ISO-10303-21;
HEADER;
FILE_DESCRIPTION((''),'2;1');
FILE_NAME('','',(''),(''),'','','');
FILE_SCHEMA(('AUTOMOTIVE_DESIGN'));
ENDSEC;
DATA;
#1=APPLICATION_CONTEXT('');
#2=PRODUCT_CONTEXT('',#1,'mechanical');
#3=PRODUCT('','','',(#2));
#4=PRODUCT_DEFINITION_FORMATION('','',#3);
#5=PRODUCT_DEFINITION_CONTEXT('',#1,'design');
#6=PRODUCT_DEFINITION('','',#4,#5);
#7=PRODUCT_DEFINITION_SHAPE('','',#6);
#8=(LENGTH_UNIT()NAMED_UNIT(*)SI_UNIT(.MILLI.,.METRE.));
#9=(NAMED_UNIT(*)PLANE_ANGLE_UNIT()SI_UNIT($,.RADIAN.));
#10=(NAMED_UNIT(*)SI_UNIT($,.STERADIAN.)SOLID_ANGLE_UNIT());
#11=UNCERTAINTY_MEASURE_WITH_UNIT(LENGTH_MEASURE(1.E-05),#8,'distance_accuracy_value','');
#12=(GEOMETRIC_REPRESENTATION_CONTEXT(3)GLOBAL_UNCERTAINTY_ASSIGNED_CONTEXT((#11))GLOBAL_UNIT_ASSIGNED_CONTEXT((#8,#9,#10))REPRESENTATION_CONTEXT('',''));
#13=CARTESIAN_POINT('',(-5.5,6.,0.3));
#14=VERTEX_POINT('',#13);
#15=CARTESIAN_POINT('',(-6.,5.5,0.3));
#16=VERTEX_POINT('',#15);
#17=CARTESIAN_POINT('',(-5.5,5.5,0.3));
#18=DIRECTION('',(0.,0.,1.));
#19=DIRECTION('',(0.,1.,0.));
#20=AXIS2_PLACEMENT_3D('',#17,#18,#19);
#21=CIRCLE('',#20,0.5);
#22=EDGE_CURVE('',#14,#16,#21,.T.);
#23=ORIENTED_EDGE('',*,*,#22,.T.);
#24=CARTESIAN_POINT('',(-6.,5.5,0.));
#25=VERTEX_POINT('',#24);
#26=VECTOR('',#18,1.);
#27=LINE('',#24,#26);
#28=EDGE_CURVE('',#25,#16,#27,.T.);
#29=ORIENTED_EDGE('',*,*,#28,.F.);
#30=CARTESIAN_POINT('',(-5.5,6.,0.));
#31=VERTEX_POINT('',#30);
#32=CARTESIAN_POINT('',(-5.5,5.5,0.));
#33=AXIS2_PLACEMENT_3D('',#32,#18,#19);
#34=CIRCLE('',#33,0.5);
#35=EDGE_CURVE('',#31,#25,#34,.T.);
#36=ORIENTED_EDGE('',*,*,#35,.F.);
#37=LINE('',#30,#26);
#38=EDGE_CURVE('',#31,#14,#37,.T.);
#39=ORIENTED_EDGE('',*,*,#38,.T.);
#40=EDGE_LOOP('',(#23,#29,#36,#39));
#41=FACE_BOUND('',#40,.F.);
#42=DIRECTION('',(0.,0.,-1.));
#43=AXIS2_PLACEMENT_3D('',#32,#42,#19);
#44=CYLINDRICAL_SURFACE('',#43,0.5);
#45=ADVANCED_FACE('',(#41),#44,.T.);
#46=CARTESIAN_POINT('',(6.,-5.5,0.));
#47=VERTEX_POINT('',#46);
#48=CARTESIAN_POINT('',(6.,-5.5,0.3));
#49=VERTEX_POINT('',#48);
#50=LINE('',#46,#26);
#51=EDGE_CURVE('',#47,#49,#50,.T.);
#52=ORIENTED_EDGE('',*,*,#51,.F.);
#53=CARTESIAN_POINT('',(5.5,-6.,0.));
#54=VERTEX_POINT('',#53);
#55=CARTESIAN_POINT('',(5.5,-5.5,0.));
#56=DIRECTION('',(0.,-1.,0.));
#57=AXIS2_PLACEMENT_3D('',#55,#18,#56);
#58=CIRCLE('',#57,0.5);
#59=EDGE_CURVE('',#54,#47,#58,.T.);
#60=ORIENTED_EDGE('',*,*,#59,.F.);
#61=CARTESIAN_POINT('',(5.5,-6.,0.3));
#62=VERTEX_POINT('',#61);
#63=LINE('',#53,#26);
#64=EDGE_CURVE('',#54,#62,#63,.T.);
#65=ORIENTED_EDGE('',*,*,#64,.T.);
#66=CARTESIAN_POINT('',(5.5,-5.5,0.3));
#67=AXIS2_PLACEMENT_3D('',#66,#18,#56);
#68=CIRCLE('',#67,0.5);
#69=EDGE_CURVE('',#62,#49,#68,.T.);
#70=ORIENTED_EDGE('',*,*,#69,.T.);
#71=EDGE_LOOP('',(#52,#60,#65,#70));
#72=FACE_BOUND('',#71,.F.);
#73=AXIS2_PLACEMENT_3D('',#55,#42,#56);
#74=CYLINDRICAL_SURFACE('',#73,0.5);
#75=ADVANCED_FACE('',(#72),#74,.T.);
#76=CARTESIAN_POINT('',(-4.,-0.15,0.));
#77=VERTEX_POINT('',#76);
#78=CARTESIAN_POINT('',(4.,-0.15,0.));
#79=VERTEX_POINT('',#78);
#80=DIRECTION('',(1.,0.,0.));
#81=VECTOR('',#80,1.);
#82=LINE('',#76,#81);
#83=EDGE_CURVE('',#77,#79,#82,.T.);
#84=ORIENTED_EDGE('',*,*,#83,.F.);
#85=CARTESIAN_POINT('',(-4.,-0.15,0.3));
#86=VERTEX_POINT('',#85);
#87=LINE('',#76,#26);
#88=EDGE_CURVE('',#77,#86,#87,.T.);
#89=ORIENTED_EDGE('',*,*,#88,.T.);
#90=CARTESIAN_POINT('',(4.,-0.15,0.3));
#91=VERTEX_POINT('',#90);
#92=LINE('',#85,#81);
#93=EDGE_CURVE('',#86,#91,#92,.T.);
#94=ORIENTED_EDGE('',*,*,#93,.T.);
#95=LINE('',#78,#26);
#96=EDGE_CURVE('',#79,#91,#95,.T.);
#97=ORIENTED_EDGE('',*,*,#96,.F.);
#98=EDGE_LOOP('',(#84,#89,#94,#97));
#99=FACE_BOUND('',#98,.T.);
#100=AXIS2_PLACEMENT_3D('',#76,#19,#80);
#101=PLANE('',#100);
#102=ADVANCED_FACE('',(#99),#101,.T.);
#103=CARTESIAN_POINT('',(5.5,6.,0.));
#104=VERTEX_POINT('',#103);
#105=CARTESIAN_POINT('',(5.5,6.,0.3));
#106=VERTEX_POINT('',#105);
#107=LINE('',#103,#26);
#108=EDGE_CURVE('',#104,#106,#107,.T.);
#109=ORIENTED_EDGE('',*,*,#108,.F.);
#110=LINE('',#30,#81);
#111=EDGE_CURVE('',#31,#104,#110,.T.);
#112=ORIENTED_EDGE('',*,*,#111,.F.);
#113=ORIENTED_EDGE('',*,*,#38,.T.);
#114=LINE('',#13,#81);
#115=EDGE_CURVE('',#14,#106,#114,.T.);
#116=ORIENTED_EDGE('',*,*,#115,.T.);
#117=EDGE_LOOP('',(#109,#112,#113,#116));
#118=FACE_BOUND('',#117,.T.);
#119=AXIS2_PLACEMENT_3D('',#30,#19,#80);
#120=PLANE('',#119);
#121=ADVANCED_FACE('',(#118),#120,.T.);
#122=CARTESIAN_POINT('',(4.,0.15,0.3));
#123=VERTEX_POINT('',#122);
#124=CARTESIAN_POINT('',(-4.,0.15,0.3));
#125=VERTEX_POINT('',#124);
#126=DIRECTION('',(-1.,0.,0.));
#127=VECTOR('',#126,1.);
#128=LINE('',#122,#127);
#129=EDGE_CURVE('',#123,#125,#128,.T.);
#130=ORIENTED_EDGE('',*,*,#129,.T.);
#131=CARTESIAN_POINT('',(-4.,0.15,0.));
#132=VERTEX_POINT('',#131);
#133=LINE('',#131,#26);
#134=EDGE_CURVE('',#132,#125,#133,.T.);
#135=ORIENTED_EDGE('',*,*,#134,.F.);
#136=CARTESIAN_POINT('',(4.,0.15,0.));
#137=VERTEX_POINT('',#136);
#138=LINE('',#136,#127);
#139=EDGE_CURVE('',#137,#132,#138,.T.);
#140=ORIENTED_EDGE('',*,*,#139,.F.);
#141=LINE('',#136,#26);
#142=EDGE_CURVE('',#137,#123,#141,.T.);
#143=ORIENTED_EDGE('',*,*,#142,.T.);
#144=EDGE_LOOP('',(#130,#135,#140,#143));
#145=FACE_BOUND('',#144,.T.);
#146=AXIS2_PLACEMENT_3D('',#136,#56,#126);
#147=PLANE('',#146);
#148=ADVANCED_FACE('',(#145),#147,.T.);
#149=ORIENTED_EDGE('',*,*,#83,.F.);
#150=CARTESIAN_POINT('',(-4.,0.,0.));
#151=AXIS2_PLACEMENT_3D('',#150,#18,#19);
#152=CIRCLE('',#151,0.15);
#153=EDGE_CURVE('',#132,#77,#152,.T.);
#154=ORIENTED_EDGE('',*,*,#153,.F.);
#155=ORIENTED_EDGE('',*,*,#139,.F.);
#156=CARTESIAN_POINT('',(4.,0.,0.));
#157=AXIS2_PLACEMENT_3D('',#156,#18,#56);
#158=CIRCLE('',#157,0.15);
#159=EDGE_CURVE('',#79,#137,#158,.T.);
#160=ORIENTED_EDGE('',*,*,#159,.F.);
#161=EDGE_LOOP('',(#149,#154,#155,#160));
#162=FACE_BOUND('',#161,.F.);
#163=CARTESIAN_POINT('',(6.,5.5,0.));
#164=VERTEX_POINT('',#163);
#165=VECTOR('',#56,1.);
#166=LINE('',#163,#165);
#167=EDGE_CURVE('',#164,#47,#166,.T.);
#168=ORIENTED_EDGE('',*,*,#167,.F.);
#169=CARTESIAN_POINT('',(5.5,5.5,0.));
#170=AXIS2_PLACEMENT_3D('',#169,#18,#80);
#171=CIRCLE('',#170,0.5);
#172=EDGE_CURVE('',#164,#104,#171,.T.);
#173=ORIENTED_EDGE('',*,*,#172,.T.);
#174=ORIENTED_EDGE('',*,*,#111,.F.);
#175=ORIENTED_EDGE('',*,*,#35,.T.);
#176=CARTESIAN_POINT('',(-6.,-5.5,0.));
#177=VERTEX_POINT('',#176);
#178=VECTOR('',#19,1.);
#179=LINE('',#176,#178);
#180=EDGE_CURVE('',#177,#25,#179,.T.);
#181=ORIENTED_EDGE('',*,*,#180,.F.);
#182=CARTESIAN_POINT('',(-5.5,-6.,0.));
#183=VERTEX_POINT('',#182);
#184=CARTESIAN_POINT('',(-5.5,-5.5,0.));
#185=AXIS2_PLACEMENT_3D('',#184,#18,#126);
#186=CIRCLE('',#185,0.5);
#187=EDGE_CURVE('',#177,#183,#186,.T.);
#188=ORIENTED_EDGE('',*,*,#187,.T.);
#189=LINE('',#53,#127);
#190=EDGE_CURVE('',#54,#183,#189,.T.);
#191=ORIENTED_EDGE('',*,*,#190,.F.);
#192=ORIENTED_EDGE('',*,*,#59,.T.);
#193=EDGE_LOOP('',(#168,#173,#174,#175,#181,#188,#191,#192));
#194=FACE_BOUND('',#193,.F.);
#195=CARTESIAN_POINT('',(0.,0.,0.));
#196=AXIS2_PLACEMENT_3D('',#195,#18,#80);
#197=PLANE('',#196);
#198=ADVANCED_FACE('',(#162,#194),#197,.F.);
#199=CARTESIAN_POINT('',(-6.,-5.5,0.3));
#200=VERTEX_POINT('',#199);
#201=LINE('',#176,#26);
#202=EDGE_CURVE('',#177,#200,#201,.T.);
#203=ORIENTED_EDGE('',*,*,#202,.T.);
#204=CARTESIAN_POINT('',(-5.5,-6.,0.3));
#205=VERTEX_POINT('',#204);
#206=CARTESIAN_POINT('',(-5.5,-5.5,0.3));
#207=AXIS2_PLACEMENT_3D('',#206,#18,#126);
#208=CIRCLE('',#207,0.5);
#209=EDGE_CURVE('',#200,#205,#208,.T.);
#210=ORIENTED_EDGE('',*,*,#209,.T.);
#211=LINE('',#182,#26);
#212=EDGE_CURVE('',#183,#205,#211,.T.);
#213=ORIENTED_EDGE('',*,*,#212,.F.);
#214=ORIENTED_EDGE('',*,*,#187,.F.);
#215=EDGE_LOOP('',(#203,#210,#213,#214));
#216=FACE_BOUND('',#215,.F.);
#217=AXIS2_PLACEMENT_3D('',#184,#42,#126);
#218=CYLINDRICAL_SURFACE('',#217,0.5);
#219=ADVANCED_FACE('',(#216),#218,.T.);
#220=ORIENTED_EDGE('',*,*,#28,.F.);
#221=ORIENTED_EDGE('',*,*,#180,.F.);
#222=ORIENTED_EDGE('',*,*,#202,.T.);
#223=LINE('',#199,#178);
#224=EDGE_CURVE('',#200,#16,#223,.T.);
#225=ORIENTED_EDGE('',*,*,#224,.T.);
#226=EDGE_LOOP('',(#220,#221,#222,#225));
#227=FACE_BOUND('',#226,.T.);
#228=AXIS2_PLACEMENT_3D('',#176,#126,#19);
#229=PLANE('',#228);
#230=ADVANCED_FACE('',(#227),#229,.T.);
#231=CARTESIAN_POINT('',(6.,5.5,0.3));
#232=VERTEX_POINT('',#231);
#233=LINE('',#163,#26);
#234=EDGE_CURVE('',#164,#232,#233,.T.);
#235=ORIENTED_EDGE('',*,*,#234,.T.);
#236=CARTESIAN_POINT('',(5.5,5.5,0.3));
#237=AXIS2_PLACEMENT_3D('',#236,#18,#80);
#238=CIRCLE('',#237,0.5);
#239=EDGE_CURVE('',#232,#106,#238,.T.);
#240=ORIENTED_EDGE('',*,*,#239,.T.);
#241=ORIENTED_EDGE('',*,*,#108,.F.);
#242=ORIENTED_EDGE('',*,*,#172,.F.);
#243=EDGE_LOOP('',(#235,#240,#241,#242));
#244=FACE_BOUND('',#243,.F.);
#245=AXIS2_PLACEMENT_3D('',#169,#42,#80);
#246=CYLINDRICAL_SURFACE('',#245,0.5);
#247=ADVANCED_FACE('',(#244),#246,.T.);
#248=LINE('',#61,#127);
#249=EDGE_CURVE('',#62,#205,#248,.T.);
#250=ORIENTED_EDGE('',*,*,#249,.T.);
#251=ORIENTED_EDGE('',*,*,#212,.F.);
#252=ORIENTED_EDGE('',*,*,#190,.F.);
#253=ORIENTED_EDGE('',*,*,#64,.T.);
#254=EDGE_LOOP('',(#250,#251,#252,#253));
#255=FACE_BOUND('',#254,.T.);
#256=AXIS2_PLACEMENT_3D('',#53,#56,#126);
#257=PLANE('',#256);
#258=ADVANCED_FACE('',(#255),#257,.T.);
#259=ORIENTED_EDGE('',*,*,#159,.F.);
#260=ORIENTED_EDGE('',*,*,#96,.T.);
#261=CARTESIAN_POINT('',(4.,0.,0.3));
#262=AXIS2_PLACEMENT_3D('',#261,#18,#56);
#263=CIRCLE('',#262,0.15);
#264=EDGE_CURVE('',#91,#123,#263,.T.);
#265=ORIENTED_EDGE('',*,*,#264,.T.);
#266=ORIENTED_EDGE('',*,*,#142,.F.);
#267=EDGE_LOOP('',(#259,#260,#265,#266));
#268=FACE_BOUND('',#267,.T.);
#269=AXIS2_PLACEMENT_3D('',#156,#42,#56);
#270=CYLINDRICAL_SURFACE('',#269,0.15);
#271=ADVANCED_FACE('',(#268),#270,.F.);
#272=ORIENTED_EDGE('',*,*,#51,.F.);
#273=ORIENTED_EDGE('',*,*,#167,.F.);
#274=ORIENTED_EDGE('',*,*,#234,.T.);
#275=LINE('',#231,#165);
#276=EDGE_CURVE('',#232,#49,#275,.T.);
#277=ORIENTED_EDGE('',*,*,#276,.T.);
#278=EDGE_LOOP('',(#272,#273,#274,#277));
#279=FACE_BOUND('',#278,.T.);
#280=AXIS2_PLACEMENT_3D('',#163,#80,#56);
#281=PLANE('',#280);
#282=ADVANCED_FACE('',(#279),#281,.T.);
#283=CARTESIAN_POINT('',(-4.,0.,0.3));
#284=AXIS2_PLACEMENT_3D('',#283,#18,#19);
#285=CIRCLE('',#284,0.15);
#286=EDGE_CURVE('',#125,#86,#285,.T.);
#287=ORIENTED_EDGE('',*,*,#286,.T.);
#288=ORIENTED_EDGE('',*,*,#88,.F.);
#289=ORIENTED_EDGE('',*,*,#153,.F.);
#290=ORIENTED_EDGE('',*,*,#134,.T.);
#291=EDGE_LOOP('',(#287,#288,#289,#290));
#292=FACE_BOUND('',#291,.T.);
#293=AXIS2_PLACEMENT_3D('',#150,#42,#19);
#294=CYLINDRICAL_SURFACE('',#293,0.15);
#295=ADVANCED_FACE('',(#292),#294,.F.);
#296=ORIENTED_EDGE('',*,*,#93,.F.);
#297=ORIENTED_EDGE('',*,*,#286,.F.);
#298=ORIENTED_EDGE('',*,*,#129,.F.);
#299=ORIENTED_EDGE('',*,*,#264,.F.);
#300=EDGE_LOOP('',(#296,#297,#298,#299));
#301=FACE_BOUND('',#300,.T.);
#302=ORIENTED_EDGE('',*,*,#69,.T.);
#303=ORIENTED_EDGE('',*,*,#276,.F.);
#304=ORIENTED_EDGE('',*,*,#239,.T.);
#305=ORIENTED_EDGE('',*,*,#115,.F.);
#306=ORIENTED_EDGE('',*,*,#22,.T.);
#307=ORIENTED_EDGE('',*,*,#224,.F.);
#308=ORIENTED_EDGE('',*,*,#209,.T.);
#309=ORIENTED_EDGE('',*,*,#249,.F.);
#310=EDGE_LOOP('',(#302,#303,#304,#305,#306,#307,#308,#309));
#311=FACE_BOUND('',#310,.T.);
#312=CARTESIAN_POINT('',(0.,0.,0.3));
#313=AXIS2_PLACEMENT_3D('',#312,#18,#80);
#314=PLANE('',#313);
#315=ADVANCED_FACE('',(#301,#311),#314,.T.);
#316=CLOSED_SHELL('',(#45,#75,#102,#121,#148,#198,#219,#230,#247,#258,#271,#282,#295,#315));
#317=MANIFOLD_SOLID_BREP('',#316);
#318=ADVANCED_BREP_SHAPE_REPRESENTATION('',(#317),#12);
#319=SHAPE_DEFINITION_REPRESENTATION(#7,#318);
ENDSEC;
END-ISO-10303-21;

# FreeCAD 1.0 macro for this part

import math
import FreeCAD as App
import Part
import Sketcher
from FreeCAD import Vector
Q = App.Units.Quantity

doc = App.newDocument("Part")
body = doc.addObject("PartDesign::Body", "Body")

sketch1 = body.newObject("Sketcher::SketchObject", "Sketch")
sketch1.AttachmentSupport = (doc.getObject("XY_Plane"), [""])
sketch1.MapMode = "FlatFace"
sketch1.addGeometry([
    Part.LineSegment(Vector(5.5, 6, 0), Vector(-5.5, 6, 0)),
    Part.ArcOfCircle(Part.Circle(Vector(-5.5, 5.5, 0), Vector(0, 0, 1), 0.5), math.radians(90), math.radians(180)),
    Part.LineSegment(Vector(-6, 5.5, 0), Vector(-6, -5.5, 0)),
    Part.ArcOfCircle(Part.Circle(Vector(-5.5, -5.5, 0), Vector(0, 0, 1), 0.5), math.radians(180), math.radians(270)),
    Part.LineSegment(Vector(-5.5, -6, 0), Vector(5.5, -6, 0)),
    Part.ArcOfCircle(Part.Circle(Vector(5.5, -5.5, 0), Vector(0, 0, 1), 0.5), math.radians(-90), math.radians(0)),
    Part.LineSegment(Vector(6, -5.5, 0), Vector(6, 5.5, 0)),
    Part.ArcOfCircle(Part.Circle(Vector(5.5, 5.5, 0), Vector(0, 0, 1), 0.5), math.radians(0), math.radians(90)),
    Part.LineSegment(Vector(4, -0.15, 0), Vector(-4, -0.15, 0)),
    Part.ArcOfCircle(Part.Circle(Vector(-4, 0, 0), Vector(0, 0, 1), 0.15), math.radians(90), math.radians(270)),
    Part.LineSegment(Vector(-4, 0.15, 0), Vector(4, 0.15, 0)),
    Part.ArcOfCircle(Part.Circle(Vector(4, 0, 0), Vector(0, 0, 1), 0.15), math.radians(-90), math.radians(90)),
], False)
sketch1.addConstraint([
    Sketcher.Constraint("Tangent", 0, 2, 1, 1),
    Sketcher.Constraint("Tangent", 1, 2, 2, 1),
    Sketcher.Constraint("Tangent", 2, 2, 3, 1),
    Sketcher.Constraint("Tangent", 3, 2, 4, 1),
    Sketcher.Constraint("Tangent", 4, 2, 5, 1),
    Sketcher.Constraint("Tangent", 5, 2, 6, 1),
    Sketcher.Constraint("Tangent", 6, 2, 7, 1),
    Sketcher.Constraint("Tangent", 7, 2, 0, 1),
    Sketcher.Constraint("Tangent", 8, 2, 9, 2),
    Sketcher.Constraint("Tangent", 9, 1, 10, 1),
    Sketcher.Constraint("Tangent", 10, 2, 11, 2),
    Sketcher.Constraint("Tangent", 11, 1, 8, 1),
    Sketcher.Constraint("Horizontal", 0),
    Sketcher.Constraint("Vertical", 2),
    Sketcher.Constraint("Horizontal", 4),
    Sketcher.Constraint("Vertical", 6),
    Sketcher.Constraint("Horizontal", 8),
    Sketcher.Constraint("Horizontal", 10),
    Sketcher.Constraint("Equal", 1, 3),
    Sketcher.Constraint("Equal", 3, 5),
    Sketcher.Constraint("Equal", 5, 7),
    Sketcher.Constraint("Symmetric", 1, 3, 5, 3, -1, 1),
    Sketcher.Constraint("Symmetric", 9, 3, 11, 3, -1, 1),
    Sketcher.Constraint("Equal", 4, 2),
    Sketcher.Constraint("Radius", 1, Q("0.5 mm")),
    Sketcher.Constraint("Radius", 9, Q("0.15 mm")),
    Sketcher.Constraint("DistanceX", 9, 3, -1, 1, Q("4 mm")),
    Sketcher.Constraint("DistanceX", 0, 2, 0, 1, Q("11 mm")),
])
pad1 = body.newObject("PartDesign::Pad", "Pad")
pad1.Profile = sketch1
pad1.Length = 0.3

doc.recompute()
